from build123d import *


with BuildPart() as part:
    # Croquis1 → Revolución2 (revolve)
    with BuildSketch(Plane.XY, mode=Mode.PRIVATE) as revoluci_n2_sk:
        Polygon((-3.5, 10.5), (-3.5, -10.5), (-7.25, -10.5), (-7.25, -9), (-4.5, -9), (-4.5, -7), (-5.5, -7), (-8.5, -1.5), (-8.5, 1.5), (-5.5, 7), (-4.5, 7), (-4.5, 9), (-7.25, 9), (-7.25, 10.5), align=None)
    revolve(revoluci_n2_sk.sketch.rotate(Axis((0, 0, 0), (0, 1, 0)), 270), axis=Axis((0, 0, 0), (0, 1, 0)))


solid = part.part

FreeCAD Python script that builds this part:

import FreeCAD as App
import Part
import Sketcher


def add_polygon(sketch, points):
    """Adds a closed chain of lines whose ends are joined by coincident constraints."""
    first, n = sketch.GeometryCount, len(points)
    for a, b in zip(points, points[1:] + points[:1]):
        sketch.addGeometry(Part.LineSegment(App.Vector(*a, 0), App.Vector(*b, 0)), False)
    for i in range(n):
        sketch.addConstraint(Sketcher.Constraint("Coincident", first + i, 2, first + (i + 1) % n, 1))

doc = App.newDocument("Part")
params = doc.addObject("Spreadsheet::Sheet", "Params")
for row, (alias, value) in enumerate([
    ("sketch1_width", "1 mm"),
    ("sketch1_height", "21 mm"),
    ("sketch1_height2", "2 mm"),
    ("sketch1_height3", "3 mm"),
    ("sketch1_height4", "1.5 mm"),
    ("revolution_angle", "360 deg"),
], start=1):
    params.set(f"A{row}", alias)
    params.set(f"B{row}", "=" + value)
    params.setAlias(f"B{row}", alias)

body = doc.addObject("PartDesign::Body", "Body")

# Sketch on XY plane
sketch1 = doc.addObject("Sketcher::SketchObject", "Sketch")
body.addObject(sketch1)
sketch1.AttachmentSupport = (doc.XY_Plane, [""])
sketch1.MapMode = "FlatFace"
add_polygon(sketch1, [(-3.5, -10.5), (-3.5, 10.5), (-7.25, 10.5), (-7.25, 9), (-4.5, 9), (-4.5, 7), (-5.5, 7), (-8.5, 1.5), (-8.5, -1.5), (-5.5, -7), (-4.5, -7), (-4.5, -9), (-7.25, -9), (-7.25, -10.5)])  # lines 0-13
sketch1.addConstraint(Sketcher.Constraint("Vertical", 0))
sketch1.addConstraint(Sketcher.Constraint("Horizontal", 1))
sketch1.addConstraint(Sketcher.Constraint("Vertical", 2))
sketch1.addConstraint(Sketcher.Constraint("Horizontal", 3))
sketch1.addConstraint(Sketcher.Constraint("Vertical", 4))
sketch1.addConstraint(Sketcher.Constraint("Horizontal", 5))
sketch1.addConstraint(Sketcher.Constraint("Vertical", 7))
sketch1.addConstraint(Sketcher.Constraint("Horizontal", 9))
sketch1.addConstraint(Sketcher.Constraint("Vertical", 10))
sketch1.addConstraint(Sketcher.Constraint("Horizontal", 11))
sketch1.addConstraint(Sketcher.Constraint("Vertical", 12))
sketch1.addConstraint(Sketcher.Constraint("Horizontal", 13))
sketch1.addConstraint(Sketcher.Constraint("Symmetric", 5, 2, 8, 2, -1))
sketch1.addConstraint(Sketcher.Constraint("Symmetric", 3, 2, 10, 2, -1))
sketch1.addConstraint(Sketcher.Constraint("Symmetric", 1, 2, 12, 2, -1))
sketch1.addConstraint(Sketcher.Constraint("Equal", 6, 8))
sketch1.addConstraint(Sketcher.Constraint("DistanceX", 5, 2, 5, 1, 1.0))
sketch1.addConstraint(Sketcher.Constraint("DistanceY", 0, 1, 0, 2, 21.0))
sketch1.addConstraint(Sketcher.Constraint("DistanceY", 4, 2, 4, 1, 2.0))
sketch1.addConstraint(Sketcher.Constraint("DistanceY", 7, 2, 7, 1, 3.0))
sketch1.addConstraint(Sketcher.Constraint("DistanceY", 2, 2, 2, 1, 1.5))
sketch1.addConstraint(Sketcher.Constraint("DistanceX", 3, 2, 0, 2, 1.0))
sketch1.addConstraint(Sketcher.Constraint("DistanceX", 6, 2, 5, 2, 3.0))
sketch1.addConstraint(Sketcher.Constraint("DistanceX", 1, 2, 1, 1, 3.75))
sketch1.addConstraint(Sketcher.Constraint("DistanceX", 0, 2, -1, 1, 3.5))
sketch1.setExpression("Constraints[30]", "Params.sketch1_width")
sketch1.setExpression("Constraints[31]", "Params.sketch1_height")
sketch1.setExpression("Constraints[32]", "Params.sketch1_height2")
sketch1.setExpression("Constraints[33]", "Params.sketch1_height3")
sketch1.setExpression("Constraints[34]", "Params.sketch1_height4")
revolution = doc.addObject("PartDesign::Revolution", "Revolution")
body.addObject(revolution)
revolution.Profile = sketch1
revolution.ReferenceAxis = (sketch1, ["V_Axis"])
revolution.setExpression("Angle", "Params.revolution_angle")

doc.recompute()
